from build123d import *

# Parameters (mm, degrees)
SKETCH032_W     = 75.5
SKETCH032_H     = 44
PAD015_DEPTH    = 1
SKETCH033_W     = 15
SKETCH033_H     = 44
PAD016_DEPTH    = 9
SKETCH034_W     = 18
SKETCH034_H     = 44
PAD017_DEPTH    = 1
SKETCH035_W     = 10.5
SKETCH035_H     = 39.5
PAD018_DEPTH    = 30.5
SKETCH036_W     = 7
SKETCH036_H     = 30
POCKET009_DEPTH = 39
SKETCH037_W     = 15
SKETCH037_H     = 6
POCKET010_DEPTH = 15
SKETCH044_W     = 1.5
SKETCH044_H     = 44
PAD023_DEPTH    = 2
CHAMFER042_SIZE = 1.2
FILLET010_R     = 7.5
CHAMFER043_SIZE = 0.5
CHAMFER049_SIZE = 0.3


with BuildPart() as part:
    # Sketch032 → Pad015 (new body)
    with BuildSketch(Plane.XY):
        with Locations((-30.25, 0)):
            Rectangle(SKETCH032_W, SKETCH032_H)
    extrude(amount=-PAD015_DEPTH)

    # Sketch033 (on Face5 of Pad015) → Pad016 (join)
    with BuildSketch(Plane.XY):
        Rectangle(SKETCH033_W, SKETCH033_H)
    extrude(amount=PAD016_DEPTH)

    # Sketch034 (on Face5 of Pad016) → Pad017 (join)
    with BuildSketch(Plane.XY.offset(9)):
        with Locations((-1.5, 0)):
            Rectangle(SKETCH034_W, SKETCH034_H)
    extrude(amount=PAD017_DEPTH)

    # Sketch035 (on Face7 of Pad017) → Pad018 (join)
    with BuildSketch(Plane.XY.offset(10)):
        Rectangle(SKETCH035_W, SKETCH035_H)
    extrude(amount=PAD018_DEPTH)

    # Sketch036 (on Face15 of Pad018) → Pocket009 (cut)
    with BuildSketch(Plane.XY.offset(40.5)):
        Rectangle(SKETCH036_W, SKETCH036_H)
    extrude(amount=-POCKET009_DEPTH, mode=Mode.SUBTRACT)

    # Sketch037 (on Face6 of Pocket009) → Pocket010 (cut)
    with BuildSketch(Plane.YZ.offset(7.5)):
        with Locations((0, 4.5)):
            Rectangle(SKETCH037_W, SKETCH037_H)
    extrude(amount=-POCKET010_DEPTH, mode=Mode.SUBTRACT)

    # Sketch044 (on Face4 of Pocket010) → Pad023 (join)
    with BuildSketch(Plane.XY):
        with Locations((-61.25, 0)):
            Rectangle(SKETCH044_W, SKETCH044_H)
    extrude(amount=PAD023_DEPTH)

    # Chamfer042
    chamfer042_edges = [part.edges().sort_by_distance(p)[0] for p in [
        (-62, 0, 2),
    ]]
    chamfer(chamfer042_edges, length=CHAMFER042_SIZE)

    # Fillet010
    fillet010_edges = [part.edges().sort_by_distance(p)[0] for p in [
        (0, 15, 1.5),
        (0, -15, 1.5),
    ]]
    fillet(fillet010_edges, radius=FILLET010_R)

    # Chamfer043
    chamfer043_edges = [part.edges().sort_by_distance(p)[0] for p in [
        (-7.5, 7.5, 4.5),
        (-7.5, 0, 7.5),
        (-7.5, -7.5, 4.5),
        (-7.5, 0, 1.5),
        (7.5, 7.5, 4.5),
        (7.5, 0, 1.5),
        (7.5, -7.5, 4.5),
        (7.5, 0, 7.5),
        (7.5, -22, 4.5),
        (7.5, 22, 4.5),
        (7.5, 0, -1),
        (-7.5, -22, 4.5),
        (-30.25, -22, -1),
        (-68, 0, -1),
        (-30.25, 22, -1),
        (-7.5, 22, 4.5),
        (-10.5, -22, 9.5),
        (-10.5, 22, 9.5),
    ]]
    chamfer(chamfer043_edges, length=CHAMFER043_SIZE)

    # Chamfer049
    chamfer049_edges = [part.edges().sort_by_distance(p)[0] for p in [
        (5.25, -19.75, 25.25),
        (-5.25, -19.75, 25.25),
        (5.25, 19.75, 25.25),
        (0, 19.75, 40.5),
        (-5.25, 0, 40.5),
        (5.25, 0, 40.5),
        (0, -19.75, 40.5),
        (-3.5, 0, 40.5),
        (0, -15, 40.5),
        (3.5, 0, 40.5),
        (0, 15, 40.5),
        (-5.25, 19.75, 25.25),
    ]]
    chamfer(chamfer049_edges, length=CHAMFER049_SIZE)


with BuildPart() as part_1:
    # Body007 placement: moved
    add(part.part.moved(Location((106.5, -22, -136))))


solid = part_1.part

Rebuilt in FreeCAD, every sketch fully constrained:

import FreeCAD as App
import Part
import Sketcher
Q = App.Units.Quantity


def edges_at(feature, points):
    """Names of the edges that pass closest to the given points."""
    edges = feature.Shape.Edges
    near = lambda p: min(range(len(edges)), key=lambda i: edges[i].distToShape(Part.Vertex(*p))[0])
    return sorted({f"Edge{near(p) + 1}" for p in points})

doc = App.newDocument("Part")
body = doc.addObject("PartDesign::Body", "Body")

sketch1 = doc.addObject("Sketcher::SketchObject", "Sketch")
body.addObject(sketch1)
sketch1.AttachmentSupport = (doc.XY_Plane, [""])
sketch1.MapMode = "FlatFace"
sketch1.addGeometry(Part.LineSegment(App.Vector(-68, 22, 0), App.Vector(-68, -22, 0)), False)
sketch1.addGeometry(Part.LineSegment(App.Vector(-68, -22, 0), App.Vector(8, -22, 0)), False)
sketch1.addGeometry(Part.LineSegment(App.Vector(8, -22, 0), App.Vector(8, 22, 0)), False)
sketch1.addGeometry(Part.LineSegment(App.Vector(8, 22, 0), App.Vector(-68, 22, 0)), False)
sketch1.addConstraint(Sketcher.Constraint("Coincident", 0, 2, 1, 1))
sketch1.addConstraint(Sketcher.Constraint("Coincident", 1, 2, 2, 1))
sketch1.addConstraint(Sketcher.Constraint("Coincident", 2, 2, 3, 1))
sketch1.addConstraint(Sketcher.Constraint("Coincident", 3, 2, 0, 1))
sketch1.addConstraint(Sketcher.Constraint("Vertical", 0))
sketch1.addConstraint(Sketcher.Constraint("Horizontal", 1))
sketch1.addConstraint(Sketcher.Constraint("Vertical", 2))
sketch1.addConstraint(Sketcher.Constraint("Horizontal", 3))
sketch1.addConstraint(Sketcher.Constraint("DistanceY", 0, 2, 0, 1, Q("44 mm")))
sketch1.addConstraint(Sketcher.Constraint("DistanceX", 1, 1, 1, 2, Q("75.5 mm")))
sketch1.addConstraint(Sketcher.Constraint("DistanceX", 0, 2, -1, 1, Q("68 mm")))
sketch1.addConstraint(Sketcher.Constraint("DistanceY", 0, 2, -1, 1, Q("22 mm")))
pad1 = doc.addObject("PartDesign::Pad", "Pad")
body.addObject(pad1)
pad1.Profile = sketch1
pad1.Length = 1
pad1.Reversed = True

sketch2 = doc.addObject("Sketcher::SketchObject", "Sketch001")
body.addObject(sketch2)
sketch2.AttachmentSupport = (doc.XY_Plane, [""])
sketch2.MapMode = "FlatFace"
sketch2.addGeometry(Part.LineSegment(App.Vector(-8, 22, 0), App.Vector(-8, -22, 0)), False)
sketch2.addGeometry(Part.LineSegment(App.Vector(-8, -22, 0), App.Vector(8, -22, 0)), False)
sketch2.addGeometry(Part.LineSegment(App.Vector(8, -22, 0), App.Vector(8, 22, 0)), False)
sketch2.addGeometry(Part.LineSegment(App.Vector(8, 22, 0), App.Vector(-8, 22, 0)), False)
sketch2.addConstraint(Sketcher.Constraint("Coincident", 0, 2, 1, 1))
sketch2.addConstraint(Sketcher.Constraint("Coincident", 1, 2, 2, 1))
sketch2.addConstraint(Sketcher.Constraint("Coincident", 2, 2, 3, 1))
sketch2.addConstraint(Sketcher.Constraint("Coincident", 3, 2, 0, 1))
sketch2.addConstraint(Sketcher.Constraint("Vertical", 0))
sketch2.addConstraint(Sketcher.Constraint("Horizontal", 1))
sketch2.addConstraint(Sketcher.Constraint("Vertical", 2))
sketch2.addConstraint(Sketcher.Constraint("Horizontal", 3))
sketch2.addConstraint(Sketcher.Constraint("Symmetric", 0, 2, 2, 2, -1, 1))
sketch2.addConstraint(Sketcher.Constraint("DistanceX", 1, 1, 1, 2, Q("15 mm")))
sketch2.addConstraint(Sketcher.Constraint("DistanceY", 0, 2, 0, 1, Q("44 mm")))
pad2 = doc.addObject("PartDesign::Pad", "Pad001")
body.addObject(pad2)
pad2.Profile = sketch2
pad2.Length = 9

sketch3 = doc.addObject("Sketcher::SketchObject", "Sketch002")
body.addObject(sketch3)
sketch3.AttachmentSupport = (doc.XY_Plane, [""])
sketch3.MapMode = "FlatFace"
sketch3.AttachmentOffset = App.Placement(App.Vector(0, 0, 9), App.Rotation())
sketch3.addGeometry(Part.LineSegment(App.Vector(-10, 22, 0), App.Vector(-10, -22, 0)), False)
sketch3.addGeometry(Part.LineSegment(App.Vector(-10, -22, 0), App.Vector(8, -22, 0)), False)
sketch3.addGeometry(Part.LineSegment(App.Vector(8, -22, 0), App.Vector(8, 22, 0)), False)
sketch3.addGeometry(Part.LineSegment(App.Vector(8, 22, 0), App.Vector(-10, 22, 0)), False)
sketch3.addConstraint(Sketcher.Constraint("Coincident", 0, 2, 1, 1))
sketch3.addConstraint(Sketcher.Constraint("Coincident", 1, 2, 2, 1))
sketch3.addConstraint(Sketcher.Constraint("Coincident", 2, 2, 3, 1))
sketch3.addConstraint(Sketcher.Constraint("Coincident", 3, 2, 0, 1))
sketch3.addConstraint(Sketcher.Constraint("Vertical", 0))
sketch3.addConstraint(Sketcher.Constraint("Horizontal", 1))
sketch3.addConstraint(Sketcher.Constraint("Vertical", 2))
sketch3.addConstraint(Sketcher.Constraint("Horizontal", 3))
sketch3.addConstraint(Sketcher.Constraint("DistanceX", 1, 1, 1, 2, Q("18 mm")))
sketch3.addConstraint(Sketcher.Constraint("DistanceY", 0, 2, 0, 1, Q("44 mm")))
sketch3.addConstraint(Sketcher.Constraint("DistanceY", 0, 2, -1, 1, Q("22 mm")))
sketch3.addConstraint(Sketcher.Constraint("DistanceX", 0, 2, -1, 1, Q("10.5 mm")))
pad3 = doc.addObject("PartDesign::Pad", "Pad002")
body.addObject(pad3)
pad3.Profile = sketch3
pad3.Length = 1

sketch4 = doc.addObject("Sketcher::SketchObject", "Sketch003")
body.addObject(sketch4)
sketch4.AttachmentSupport = (doc.XY_Plane, [""])
sketch4.MapMode = "FlatFace"
sketch4.AttachmentOffset = App.Placement(App.Vector(0, 0, 10), App.Rotation())
sketch4.addGeometry(Part.LineSegment(App.Vector(-5, 20, 0), App.Vector(-5, -20, 0)), False)
sketch4.addGeometry(Part.LineSegment(App.Vector(-5, -20, 0), App.Vector(5, -20, 0)), False)
sketch4.addGeometry(Part.LineSegment(App.Vector(5, -20, 0), App.Vector(5, 20, 0)), False)
sketch4.addGeometry(Part.LineSegment(App.Vector(5, 20, 0), App.Vector(-5, 20, 0)), False)
sketch4.addConstraint(Sketcher.Constraint("Coincident", 0, 2, 1, 1))
sketch4.addConstraint(Sketcher.Constraint("Coincident", 1, 2, 2, 1))
sketch4.addConstraint(Sketcher.Constraint("Coincident", 2, 2, 3, 1))
sketch4.addConstraint(Sketcher.Constraint("Coincident", 3, 2, 0, 1))
sketch4.addConstraint(Sketcher.Constraint("Vertical", 0))
sketch4.addConstraint(Sketcher.Constraint("Horizontal", 1))
sketch4.addConstraint(Sketcher.Constraint("Vertical", 2))
sketch4.addConstraint(Sketcher.Constraint("Horizontal", 3))
sketch4.addConstraint(Sketcher.Constraint("Symmetric", 0, 2, 2, 2, -1, 1))
sketch4.addConstraint(Sketcher.Constraint("DistanceX", 1, 1, 1, 2, Q("10.5 mm")))
sketch4.addConstraint(Sketcher.Constraint("DistanceY", 0, 2, 0, 1, Q("39.5 mm")))
pad4 = doc.addObject("PartDesign::Pad", "Pad003")
body.addObject(pad4)
pad4.Profile = sketch4
pad4.Length = 30.5

sketch5 = doc.addObject("Sketcher::SketchObject", "Sketch004")
body.addObject(sketch5)
sketch5.AttachmentSupport = (doc.XY_Plane, [""])
sketch5.MapMode = "FlatFace"
sketch5.AttachmentOffset = App.Placement(App.Vector(0, 0, 40.5), App.Rotation())
sketch5.addGeometry(Part.LineSegment(App.Vector(-4, 15, 0), App.Vector(-4, -15, 0)), False)
sketch5.addGeometry(Part.LineSegment(App.Vector(-4, -15, 0), App.Vector(4, -15, 0)), False)
sketch5.addGeometry(Part.LineSegment(App.Vector(4, -15, 0), App.Vector(4, 15, 0)), False)
sketch5.addGeometry(Part.LineSegment(App.Vector(4, 15, 0), App.Vector(-4, 15, 0)), False)
sketch5.addConstraint(Sketcher.Constraint("Coincident", 0, 2, 1, 1))
sketch5.addConstraint(Sketcher.Constraint("Coincident", 1, 2, 2, 1))
sketch5.addConstraint(Sketcher.Constraint("Coincident", 2, 2, 3, 1))
sketch5.addConstraint(Sketcher.Constraint("Coincident", 3, 2, 0, 1))
sketch5.addConstraint(Sketcher.Constraint("Vertical", 0))
sketch5.addConstraint(Sketcher.Constraint("Horizontal", 1))
sketch5.addConstraint(Sketcher.Constraint("Vertical", 2))
sketch5.addConstraint(Sketcher.Constraint("Horizontal", 3))
sketch5.addConstraint(Sketcher.Constraint("Symmetric", 0, 2, 2, 2, -1, 1))
sketch5.addConstraint(Sketcher.Constraint("DistanceX", 1, 1, 1, 2, Q("7 mm")))
sketch5.addConstraint(Sketcher.Constraint("DistanceY", 0, 2, 0, 1, Q("30 mm")))
pocket1 = doc.addObject("PartDesign::Pocket", "Pocket")
body.addObject(pocket1)
pocket1.Profile = sketch5
pocket1.Length = 39

sketch6 = doc.addObject("Sketcher::SketchObject", "Sketch005")
body.addObject(sketch6)
sketch6.AttachmentSupport = (doc.YZ_Plane, [""])
sketch6.MapMode = "FlatFace"
sketch6.AttachmentOffset = App.Placement(App.Vector(0, 0, 7.5), App.Rotation())
sketch6.addGeometry(Part.LineSegment(App.Vector(-8, 8, 0), App.Vector(-8, 2, 0)), False)
sketch6.addGeometry(Part.LineSegment(App.Vector(-8, 2, 0), App.Vector(8, 2, 0)), False)
sketch6.addGeometry(Part.LineSegment(App.Vector(8, 2, 0), App.Vector(8, 8, 0)), False)
sketch6.addGeometry(Part.LineSegment(App.Vector(8, 8, 0), App.Vector(-8, 8, 0)), False)
sketch6.addConstraint(Sketcher.Constraint("Coincident", 0, 2, 1, 1))
sketch6.addConstraint(Sketcher.Constraint("Coincident", 1, 2, 2, 1))
sketch6.addConstraint(Sketcher.Constraint("Coincident", 2, 2, 3, 1))
sketch6.addConstraint(Sketcher.Constraint("Coincident", 3, 2, 0, 1))
sketch6.addConstraint(Sketcher.Constraint("Vertical", 0))
sketch6.addConstraint(Sketcher.Constraint("Horizontal", 1))
sketch6.addConstraint(Sketcher.Constraint("Vertical", 2))
sketch6.addConstraint(Sketcher.Constraint("Horizontal", 3))
sketch6.addConstraint(Sketcher.Constraint("DistanceX", 1, 1, 1, 2, Q("15 mm")))
sketch6.addConstraint(Sketcher.Constraint("DistanceY", 0, 2, 0, 1, Q("6 mm")))
sketch6.addConstraint(Sketcher.Constraint("DistanceX", 0, 2, -1, 1, Q("7.5 mm")))
sketch6.addConstraint(Sketcher.Constraint("DistanceY", -1, 1, 0, 2, Q("1.5 mm")))
pocket2 = doc.addObject("PartDesign::Pocket", "Pocket001")
body.addObject(pocket2)
pocket2.Profile = sketch6
pocket2.Length = 15

sketch7 = doc.addObject("Sketcher::SketchObject", "Sketch006")
body.addObject(sketch7)
sketch7.AttachmentSupport = (doc.XY_Plane, [""])
sketch7.MapMode = "FlatFace"
sketch7.addGeometry(Part.LineSegment(App.Vector(-62, 22, 0), App.Vector(-62, -22, 0)), False)
sketch7.addGeometry(Part.LineSegment(App.Vector(-62, -22, 0), App.Vector(-60.5, -22, 0)), False)
sketch7.addGeometry(Part.LineSegment(App.Vector(-60.5, -22, 0), App.Vector(-60.5, 22, 0)), False)
sketch7.addGeometry(Part.LineSegment(App.Vector(-60.5, 22, 0), App.Vector(-62, 22, 0)), False)
sketch7.addConstraint(Sketcher.Constraint("Coincident", 0, 2, 1, 1))
sketch7.addConstraint(Sketcher.Constraint("Coincident", 1, 2, 2, 1))
sketch7.addConstraint(Sketcher.Constraint("Coincident", 2, 2, 3, 1))
sketch7.addConstraint(Sketcher.Constraint("Coincident", 3, 2, 0, 1))
sketch7.addConstraint(Sketcher.Constraint("Vertical", 0))
sketch7.addConstraint(Sketcher.Constraint("Horizontal", 1))
sketch7.addConstraint(Sketcher.Constraint("Vertical", 2))
sketch7.addConstraint(Sketcher.Constraint("Horizontal", 3))
sketch7.addConstraint(Sketcher.Constraint("DistanceY", 0, 2, 0, 1, Q("44 mm")))
sketch7.addConstraint(Sketcher.Constraint("DistanceX", 1, 1, 1, 2, Q("1.5 mm")))
sketch7.addConstraint(Sketcher.Constraint("DistanceX", 0, 2, -1, 1, Q("62 mm")))
sketch7.addConstraint(Sketcher.Constraint("DistanceY", 0, 2, -1, 1, Q("22 mm")))
pad5 = doc.addObject("PartDesign::Pad", "Pad004")
body.addObject(pad5)
pad5.Profile = sketch7
pad5.Length = 2
doc.recompute()

chamfer = doc.addObject("PartDesign::Chamfer", "Chamfer")
body.addObject(chamfer)
chamfer.Base = (pad5, edges_at(pad5, [(-62, 0, 2)]))
chamfer.Size = 1.2
doc.recompute()

fillet = doc.addObject("PartDesign::Fillet", "Fillet")
body.addObject(fillet)
fillet.Base = (chamfer, edges_at(chamfer, [(0, 15, 1.5), (0, -15, 1.5)]))
fillet.Radius = 7.5
doc.recompute()

chamfer2 = doc.addObject("PartDesign::Chamfer", "Chamfer001")
body.addObject(chamfer2)
chamfer2.Base = (fillet, edges_at(fillet, [
    (-7.5, 7.5, 4.5),
    (-7.5, 0, 7.5),
    (-7.5, -7.5, 4.5),
    (-7.5, 0, 1.5),
    (7.5, 7.5, 4.5),
    (7.5, 0, 1.5),
    (7.5, -7.5, 4.5),
    (7.5, 0, 7.5),
    (7.5, -22, 4.5),
    (7.5, 22, 4.5),
    (7.5, 0, -1),
    (-7.5, -22, 4.5),
    (-30.25, -22, -1),
    (-68, 0, -1),
    (-30.25, 22, -1),
    (-7.5, 22, 4.5),
    (-10.5, -22, 9.5),
    (-10.5, 22, 9.5),
]))
chamfer2.Size = 0.5
doc.recompute()

chamfer3 = doc.addObject("PartDesign::Chamfer", "Chamfer002")
body.addObject(chamfer3)
chamfer3.Base = (chamfer2, edges_at(chamfer2, [
    (5.25, -19.75, 25.25),
    (-5.25, -19.75, 25.25),
    (5.25, 19.75, 25.25),
    (0, 19.75, 40.5),
    (-5.25, 0, 40.5),
    (5.25, 0, 40.5),
    (0, -19.75, 40.5),
    (-3.5, 0, 40.5),
    (0, -15, 40.5),
    (3.5, 0, 40.5),
    (0, 15, 40.5),
    (-5.25, 19.75, 25.25),
]))
chamfer3.Size = 0.3
body2 = doc.addObject("PartDesign::Body", "Body001")
doc.recompute()

body.Placement = App.Placement(App.Vector(106.5, -22, -136), App.Rotation(App.Vector(0, 0, 1), 0))
boolean = doc.addObject("PartDesign::Boolean", "Boolean")
body2.addObject(boolean)
boolean.Type = "Fuse"
boolean.addObjects([body])

doc.recompute()
